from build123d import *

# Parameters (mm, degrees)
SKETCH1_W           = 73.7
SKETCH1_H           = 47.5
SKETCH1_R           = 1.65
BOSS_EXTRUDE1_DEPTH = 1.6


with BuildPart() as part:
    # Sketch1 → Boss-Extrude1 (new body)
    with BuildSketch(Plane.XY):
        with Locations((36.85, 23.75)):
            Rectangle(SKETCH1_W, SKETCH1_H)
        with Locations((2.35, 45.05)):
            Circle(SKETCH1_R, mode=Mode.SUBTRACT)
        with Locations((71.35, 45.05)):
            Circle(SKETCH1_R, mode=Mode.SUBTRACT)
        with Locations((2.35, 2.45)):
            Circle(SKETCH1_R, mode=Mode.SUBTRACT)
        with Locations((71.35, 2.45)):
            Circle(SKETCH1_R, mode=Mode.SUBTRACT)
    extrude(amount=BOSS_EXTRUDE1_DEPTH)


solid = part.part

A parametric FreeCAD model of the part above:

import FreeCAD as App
import Part
import Sketcher

V = App.Vector


def add_polygon(sketch, points):
    """Adds a closed chain of lines whose ends are joined by coincident constraints."""
    first, n = sketch.GeometryCount, len(points)
    for a, b in zip(points, points[1:] + points[:1]):
        sketch.addGeometry(Part.LineSegment(App.Vector(*a, 0), App.Vector(*b, 0)), False)
    for i in range(n):
        sketch.addConstraint(Sketcher.Constraint("Coincident", first + i, 2, first + (i + 1) % n, 1))

doc = App.newDocument("Part")
body = doc.addObject("PartDesign::Body", "Body")

# Sketch on XY plane
sketch1 = doc.addObject("Sketcher::SketchObject", "Sketch")
body.addObject(sketch1)
sketch1.AttachmentSupport = (doc.XY_Plane, [""])
sketch1.MapMode = "FlatFace"
add_polygon(sketch1, [(0, 47.5), (0, 0), (73.7, 0), (73.7, 47.5)])  # lines 0-3
sketch1.addGeometry(Part.Circle(V(2.4, 2.5, 0), V(0, 0, 1), 1.6), False)  # 4
sketch1.addGeometry(Part.Circle(V(71.3, 2.5, 0), V(0, 0, 1), 1.6), False)  # 5
sketch1.addGeometry(Part.Circle(V(2.4, 45, 0), V(0, 0, 1), 1.6), False)  # 6
sketch1.addGeometry(Part.Circle(V(71.3, 45, 0), V(0, 0, 1), 1.6), False)  # 7
sketch1.addConstraint([
    Sketcher.Constraint("Vertical", 0),
    Sketcher.Constraint("Horizontal", 1),
    Sketcher.Constraint("Vertical", 2),
    Sketcher.Constraint("Horizontal", 3),
    Sketcher.Constraint("Coincident", 0, 2, -1, 1),
    Sketcher.Constraint("Equal", 4, 5),
    Sketcher.Constraint("Equal", 5, 6),
    Sketcher.Constraint("Equal", 6, 7),
    Sketcher.Constraint("Horizontal", 4, 3, 5, 3),
    Sketcher.Constraint("Horizontal", 6, 3, 7, 3),
    Sketcher.Constraint("Vertical", 4, 3, 6, 3),
    Sketcher.Constraint("Vertical", 5, 3, 7, 3),
    Sketcher.Constraint("Diameter", 4, 3.3),
    Sketcher.Constraint("DistanceX", 1, 1, 1, 2, 73.7),
    Sketcher.Constraint("DistanceY", 0, 2, 0, 1, 47.5),
    Sketcher.Constraint("DistanceX", 4, 3, 5, 3, 69.0),
    Sketcher.Constraint("DistanceY", 4, 3, 6, 3, 42.6),
    Sketcher.Constraint("DistanceX", -1, 1, 4, 3, 2.35),
    Sketcher.Constraint("DistanceY", -1, 1, 4, 3, 2.45),
])
pad1 = doc.addObject("PartDesign::Pad", "Pad")
body.addObject(pad1)
pad1.Profile = sketch1
pad1.Length = 1.6

doc.recompute()
